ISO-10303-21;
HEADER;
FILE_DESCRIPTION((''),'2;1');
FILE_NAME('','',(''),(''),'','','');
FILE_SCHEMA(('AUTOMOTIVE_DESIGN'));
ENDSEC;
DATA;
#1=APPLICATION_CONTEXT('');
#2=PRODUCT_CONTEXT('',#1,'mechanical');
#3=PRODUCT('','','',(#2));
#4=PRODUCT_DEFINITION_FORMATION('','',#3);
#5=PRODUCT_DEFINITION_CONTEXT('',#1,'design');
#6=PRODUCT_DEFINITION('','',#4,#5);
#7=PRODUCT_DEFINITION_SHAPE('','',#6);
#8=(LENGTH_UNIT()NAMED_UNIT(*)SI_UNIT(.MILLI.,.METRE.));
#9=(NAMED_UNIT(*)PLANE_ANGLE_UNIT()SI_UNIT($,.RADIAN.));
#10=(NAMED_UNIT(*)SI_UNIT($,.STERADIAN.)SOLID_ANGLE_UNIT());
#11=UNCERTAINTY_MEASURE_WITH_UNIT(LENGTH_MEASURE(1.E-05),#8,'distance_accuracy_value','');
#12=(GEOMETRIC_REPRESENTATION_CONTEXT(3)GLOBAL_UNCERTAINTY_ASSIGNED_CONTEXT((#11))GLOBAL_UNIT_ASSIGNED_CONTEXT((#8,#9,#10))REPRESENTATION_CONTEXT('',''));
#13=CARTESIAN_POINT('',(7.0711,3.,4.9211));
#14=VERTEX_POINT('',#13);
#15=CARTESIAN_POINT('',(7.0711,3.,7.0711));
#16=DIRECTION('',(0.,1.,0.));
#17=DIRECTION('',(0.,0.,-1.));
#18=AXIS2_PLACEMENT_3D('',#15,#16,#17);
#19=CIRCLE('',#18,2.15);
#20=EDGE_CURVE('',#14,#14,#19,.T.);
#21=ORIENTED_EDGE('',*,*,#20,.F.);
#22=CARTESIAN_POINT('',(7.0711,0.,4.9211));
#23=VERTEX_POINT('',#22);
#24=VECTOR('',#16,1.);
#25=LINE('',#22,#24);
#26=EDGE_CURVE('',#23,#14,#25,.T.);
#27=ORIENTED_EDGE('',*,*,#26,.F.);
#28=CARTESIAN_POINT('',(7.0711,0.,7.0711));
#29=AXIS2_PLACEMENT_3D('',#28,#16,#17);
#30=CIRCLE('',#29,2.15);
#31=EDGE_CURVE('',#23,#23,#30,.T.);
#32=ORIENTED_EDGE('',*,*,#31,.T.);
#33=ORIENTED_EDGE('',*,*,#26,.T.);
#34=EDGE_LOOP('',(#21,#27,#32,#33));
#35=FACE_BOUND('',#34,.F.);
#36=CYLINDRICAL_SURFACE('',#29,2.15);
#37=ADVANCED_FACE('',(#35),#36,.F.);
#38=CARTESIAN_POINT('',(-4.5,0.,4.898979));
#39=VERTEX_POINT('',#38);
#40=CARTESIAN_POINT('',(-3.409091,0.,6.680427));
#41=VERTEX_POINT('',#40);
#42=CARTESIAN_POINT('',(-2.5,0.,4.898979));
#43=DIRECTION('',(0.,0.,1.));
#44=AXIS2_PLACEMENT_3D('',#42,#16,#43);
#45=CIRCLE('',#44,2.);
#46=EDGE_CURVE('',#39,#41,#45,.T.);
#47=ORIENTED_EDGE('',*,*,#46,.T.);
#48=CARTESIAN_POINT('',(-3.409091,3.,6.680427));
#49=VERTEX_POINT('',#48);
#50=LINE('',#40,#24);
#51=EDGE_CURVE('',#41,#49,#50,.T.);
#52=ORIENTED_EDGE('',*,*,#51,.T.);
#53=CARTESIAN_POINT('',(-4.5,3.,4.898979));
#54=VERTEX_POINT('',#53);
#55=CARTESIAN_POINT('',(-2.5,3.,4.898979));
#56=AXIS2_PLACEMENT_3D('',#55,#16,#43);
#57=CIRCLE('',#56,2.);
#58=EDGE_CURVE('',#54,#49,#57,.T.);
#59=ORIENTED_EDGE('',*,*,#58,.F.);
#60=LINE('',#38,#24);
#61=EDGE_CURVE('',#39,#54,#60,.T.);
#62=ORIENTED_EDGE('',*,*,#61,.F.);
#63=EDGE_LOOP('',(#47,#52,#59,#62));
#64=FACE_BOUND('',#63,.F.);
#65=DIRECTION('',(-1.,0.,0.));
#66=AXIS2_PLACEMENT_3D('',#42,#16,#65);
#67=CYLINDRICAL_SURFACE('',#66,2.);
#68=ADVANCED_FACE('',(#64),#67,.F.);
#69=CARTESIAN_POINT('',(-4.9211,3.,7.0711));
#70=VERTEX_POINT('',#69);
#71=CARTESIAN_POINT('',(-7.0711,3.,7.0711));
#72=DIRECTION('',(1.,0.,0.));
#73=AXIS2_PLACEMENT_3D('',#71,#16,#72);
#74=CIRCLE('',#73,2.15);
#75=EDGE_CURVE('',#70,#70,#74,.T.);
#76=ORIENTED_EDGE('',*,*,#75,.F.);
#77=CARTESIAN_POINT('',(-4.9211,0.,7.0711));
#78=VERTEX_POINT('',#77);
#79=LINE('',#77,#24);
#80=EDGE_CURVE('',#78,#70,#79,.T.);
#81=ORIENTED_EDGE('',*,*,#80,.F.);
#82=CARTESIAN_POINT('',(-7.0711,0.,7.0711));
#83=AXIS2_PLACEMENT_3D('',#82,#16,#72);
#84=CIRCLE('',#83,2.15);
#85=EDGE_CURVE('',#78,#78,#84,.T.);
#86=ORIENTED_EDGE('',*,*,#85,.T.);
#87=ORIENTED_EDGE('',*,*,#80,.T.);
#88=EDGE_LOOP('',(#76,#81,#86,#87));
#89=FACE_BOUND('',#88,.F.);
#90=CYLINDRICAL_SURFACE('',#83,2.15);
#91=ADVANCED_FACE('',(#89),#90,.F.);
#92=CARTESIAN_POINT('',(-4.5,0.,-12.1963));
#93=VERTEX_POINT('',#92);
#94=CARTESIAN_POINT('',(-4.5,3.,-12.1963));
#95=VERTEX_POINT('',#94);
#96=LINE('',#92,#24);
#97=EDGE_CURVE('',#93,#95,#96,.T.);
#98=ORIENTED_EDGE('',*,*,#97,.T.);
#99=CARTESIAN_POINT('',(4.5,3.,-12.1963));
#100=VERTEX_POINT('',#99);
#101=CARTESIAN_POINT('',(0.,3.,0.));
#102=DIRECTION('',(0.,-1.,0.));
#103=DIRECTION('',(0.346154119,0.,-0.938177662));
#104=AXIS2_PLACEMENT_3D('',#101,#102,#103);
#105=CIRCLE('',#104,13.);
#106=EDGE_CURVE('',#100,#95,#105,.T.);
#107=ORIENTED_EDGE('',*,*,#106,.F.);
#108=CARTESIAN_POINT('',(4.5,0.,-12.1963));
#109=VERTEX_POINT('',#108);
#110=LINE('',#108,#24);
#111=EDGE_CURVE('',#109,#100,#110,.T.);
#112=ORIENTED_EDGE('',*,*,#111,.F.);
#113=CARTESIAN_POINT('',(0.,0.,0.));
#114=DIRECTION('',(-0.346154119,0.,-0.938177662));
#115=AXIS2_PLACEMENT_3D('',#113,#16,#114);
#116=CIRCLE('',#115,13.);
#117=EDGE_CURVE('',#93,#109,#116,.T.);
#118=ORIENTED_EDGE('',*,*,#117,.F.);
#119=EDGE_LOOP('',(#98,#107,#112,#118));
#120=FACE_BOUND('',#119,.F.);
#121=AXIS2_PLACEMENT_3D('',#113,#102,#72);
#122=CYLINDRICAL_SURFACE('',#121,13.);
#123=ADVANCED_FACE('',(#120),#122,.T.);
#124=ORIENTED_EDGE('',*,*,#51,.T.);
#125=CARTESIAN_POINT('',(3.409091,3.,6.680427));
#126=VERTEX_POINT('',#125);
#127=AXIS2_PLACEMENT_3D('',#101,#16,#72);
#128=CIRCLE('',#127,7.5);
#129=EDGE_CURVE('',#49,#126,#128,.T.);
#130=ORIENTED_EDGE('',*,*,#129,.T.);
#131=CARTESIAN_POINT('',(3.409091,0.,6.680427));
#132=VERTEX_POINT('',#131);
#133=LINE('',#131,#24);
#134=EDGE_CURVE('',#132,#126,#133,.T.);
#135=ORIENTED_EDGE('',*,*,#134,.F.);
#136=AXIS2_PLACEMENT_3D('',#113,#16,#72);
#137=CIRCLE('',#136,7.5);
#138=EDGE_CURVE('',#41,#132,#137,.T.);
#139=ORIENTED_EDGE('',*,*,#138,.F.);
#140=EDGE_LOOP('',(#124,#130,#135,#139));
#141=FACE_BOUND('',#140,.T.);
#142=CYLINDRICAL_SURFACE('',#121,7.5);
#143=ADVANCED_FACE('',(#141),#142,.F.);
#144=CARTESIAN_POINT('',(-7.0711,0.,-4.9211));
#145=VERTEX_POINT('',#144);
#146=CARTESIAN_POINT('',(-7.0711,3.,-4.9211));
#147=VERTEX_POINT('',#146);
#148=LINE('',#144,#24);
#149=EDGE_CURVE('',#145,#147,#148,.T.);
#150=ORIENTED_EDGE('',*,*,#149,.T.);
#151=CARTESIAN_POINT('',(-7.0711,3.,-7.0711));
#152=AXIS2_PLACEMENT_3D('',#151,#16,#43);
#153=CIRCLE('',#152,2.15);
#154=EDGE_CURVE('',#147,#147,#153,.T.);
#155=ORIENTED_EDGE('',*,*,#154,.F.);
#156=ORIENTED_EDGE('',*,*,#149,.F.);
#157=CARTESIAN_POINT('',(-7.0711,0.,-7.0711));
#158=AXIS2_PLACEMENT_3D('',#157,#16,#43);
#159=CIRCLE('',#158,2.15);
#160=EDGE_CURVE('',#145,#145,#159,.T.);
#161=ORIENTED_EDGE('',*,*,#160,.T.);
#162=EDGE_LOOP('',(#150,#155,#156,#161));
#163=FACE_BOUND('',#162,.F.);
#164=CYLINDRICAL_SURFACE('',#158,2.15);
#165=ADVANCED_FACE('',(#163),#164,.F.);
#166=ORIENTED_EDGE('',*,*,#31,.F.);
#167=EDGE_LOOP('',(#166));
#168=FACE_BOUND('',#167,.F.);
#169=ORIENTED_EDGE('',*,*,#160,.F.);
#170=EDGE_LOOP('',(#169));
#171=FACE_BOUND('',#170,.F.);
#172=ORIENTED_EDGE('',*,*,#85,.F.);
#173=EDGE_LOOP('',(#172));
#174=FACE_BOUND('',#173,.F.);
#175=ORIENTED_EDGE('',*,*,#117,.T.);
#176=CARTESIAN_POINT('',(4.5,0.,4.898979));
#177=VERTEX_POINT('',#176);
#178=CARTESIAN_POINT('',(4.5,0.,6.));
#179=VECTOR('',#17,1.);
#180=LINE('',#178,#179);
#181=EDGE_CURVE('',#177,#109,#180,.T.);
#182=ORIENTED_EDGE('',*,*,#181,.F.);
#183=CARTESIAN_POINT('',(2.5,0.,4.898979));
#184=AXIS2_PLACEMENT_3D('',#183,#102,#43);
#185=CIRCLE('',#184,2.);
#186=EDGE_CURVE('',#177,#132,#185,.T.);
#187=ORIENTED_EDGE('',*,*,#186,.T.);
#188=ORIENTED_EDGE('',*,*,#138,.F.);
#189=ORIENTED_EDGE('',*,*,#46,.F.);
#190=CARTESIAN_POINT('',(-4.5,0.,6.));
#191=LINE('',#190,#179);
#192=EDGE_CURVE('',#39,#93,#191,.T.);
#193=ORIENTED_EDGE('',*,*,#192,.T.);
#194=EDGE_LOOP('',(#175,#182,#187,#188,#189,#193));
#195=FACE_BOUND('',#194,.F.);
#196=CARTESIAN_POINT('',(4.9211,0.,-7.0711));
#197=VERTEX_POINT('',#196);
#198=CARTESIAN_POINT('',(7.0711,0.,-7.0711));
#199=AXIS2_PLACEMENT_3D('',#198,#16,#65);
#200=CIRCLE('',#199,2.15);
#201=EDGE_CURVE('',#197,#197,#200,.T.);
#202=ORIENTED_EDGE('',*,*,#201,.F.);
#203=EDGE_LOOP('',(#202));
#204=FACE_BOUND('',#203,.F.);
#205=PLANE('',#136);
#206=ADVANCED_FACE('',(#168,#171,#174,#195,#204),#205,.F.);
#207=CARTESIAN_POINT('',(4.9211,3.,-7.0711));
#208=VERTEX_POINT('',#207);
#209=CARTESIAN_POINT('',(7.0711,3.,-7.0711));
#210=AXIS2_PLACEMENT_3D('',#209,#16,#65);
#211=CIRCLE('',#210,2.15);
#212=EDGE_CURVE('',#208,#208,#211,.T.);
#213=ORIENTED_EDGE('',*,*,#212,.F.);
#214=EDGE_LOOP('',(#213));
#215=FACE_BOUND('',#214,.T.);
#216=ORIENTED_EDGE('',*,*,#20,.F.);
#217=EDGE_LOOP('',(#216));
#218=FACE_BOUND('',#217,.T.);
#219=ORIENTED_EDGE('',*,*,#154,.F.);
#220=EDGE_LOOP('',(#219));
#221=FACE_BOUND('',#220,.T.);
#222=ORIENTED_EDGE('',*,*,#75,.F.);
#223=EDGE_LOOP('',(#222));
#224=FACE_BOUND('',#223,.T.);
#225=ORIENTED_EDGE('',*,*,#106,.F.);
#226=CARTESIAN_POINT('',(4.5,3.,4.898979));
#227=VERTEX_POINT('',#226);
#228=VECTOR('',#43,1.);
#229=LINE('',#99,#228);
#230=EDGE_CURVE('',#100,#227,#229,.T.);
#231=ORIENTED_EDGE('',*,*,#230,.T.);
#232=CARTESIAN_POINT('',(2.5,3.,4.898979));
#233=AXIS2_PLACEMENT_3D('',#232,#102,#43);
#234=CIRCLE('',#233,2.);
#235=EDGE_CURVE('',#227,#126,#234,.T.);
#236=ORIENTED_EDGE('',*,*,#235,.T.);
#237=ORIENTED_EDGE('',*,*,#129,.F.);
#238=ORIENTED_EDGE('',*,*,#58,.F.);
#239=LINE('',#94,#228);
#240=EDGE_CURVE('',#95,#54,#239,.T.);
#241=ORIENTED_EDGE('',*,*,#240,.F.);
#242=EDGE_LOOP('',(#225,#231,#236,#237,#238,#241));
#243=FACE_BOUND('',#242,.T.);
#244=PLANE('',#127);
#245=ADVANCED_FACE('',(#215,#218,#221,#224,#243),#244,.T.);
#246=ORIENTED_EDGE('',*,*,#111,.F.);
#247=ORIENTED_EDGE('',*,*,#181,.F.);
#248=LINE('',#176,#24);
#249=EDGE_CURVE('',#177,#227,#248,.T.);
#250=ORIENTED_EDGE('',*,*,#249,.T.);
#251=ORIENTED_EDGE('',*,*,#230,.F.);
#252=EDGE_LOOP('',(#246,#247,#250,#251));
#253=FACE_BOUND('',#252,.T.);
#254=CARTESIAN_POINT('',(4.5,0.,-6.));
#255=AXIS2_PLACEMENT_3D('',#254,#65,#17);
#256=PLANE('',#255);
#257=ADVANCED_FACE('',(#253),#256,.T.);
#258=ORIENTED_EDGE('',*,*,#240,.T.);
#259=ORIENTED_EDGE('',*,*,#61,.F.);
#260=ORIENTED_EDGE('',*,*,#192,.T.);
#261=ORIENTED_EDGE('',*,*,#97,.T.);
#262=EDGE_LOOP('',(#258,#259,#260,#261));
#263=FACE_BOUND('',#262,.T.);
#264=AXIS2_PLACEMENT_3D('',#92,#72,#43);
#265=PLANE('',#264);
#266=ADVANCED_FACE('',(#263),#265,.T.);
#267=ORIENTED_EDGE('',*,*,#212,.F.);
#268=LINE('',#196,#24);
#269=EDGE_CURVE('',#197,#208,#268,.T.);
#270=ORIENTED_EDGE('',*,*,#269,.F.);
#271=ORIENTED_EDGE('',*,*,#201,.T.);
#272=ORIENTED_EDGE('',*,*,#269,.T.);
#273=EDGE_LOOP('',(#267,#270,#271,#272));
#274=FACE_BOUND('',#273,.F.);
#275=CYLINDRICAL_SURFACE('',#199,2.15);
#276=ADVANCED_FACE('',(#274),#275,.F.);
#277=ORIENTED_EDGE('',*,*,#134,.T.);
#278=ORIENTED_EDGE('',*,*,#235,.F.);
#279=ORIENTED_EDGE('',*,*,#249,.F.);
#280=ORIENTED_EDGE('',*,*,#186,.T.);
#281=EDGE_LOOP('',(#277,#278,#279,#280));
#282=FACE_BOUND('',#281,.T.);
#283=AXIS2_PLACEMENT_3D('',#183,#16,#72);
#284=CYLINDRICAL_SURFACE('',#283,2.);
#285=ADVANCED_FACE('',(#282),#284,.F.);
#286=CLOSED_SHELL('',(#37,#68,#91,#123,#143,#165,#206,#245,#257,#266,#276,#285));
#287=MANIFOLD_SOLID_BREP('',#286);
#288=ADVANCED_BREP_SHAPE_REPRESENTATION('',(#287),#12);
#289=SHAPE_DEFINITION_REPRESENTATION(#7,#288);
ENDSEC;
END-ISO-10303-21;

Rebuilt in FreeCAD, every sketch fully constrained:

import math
import FreeCAD as App
import Part
import Sketcher

V = App.Vector
Q = App.Units.Quantity


def edges_at(feature, points):
    """Names of the edges that pass closest to the given points."""
    edges = feature.Shape.Edges
    near = lambda p: min(range(len(edges)), key=lambda i: edges[i].distToShape(Part.Vertex(*p))[0])
    return sorted({f"Edge{near(p) + 1}" for p in points})

doc = App.newDocument("Part")
body = doc.addObject("PartDesign::Body", "Body")

sketch1 = body.newObject("Sketcher::SketchObject", "Sketch")
sketch1.AttachmentSupport = (doc.getObject("XZ_Plane"), [""])
sketch1.MapMode = "FlatFace"
sketch1.addGeometry([
    Part.ArcOfCircle(Part.Circle(V(0, 0, 0), V(0, 0, 1), 13), math.radians(-70), math.radians(250)),
    Part.LineSegment(V(4, -12, 0), V(4, 6, 0)),
    Part.ArcOfCircle(Part.Circle(V(0, 0, 0), V(0, 0, 1), 8), math.radians(53), math.radians(127)),
    Part.LineSegment(V(-4, 6, 0), V(-4, -12, 0)),
], False)
sketch1.addConstraint([
    Sketcher.Constraint("Coincident", 0, 1, 1, 1),
    Sketcher.Constraint("Coincident", 1, 2, 2, 1),
    Sketcher.Constraint("Coincident", 2, 2, 3, 1),
    Sketcher.Constraint("Coincident", 3, 2, 0, 2),
    Sketcher.Constraint("Vertical", 1),
    Sketcher.Constraint("Vertical", 3),
    Sketcher.Constraint("Coincident", 0, 3, -1, 1),
    Sketcher.Constraint("Coincident", 2, 3, -1, 1),
    Sketcher.Constraint("Horizontal", 1, 2, 2, 2),
    Sketcher.Constraint("Radius", 0, Q("13 mm")),
    Sketcher.Constraint("Radius", 2, Q("7.5 mm")),
    Sketcher.Constraint("DistanceX", 2, 2, 1, 2, Q("9 mm")),
])
pad1 = body.newObject("PartDesign::Pad", "Pad")
pad1.Profile = sketch1
pad1.Length = 3
pad1.Reversed = True

sketch2 = body.newObject("Sketcher::SketchObject", "Sketch001")
sketch2.AttachmentSupport = (doc.getObject("XZ_Plane"), [""])
sketch2.MapMode = "FlatFace"
sketch2.addGeometry(Part.Circle(V(7.1, 7.1, 0), V(0, 0, 1), 2.1), False)
sketch2.addConstraint([
    Sketcher.Constraint("Diameter", 0, Q("4.3 mm")),
    Sketcher.Constraint("DistanceX", -1, 1, 0, 3, Q("7.071 mm")),
    Sketcher.Constraint("DistanceY", -1, 1, 0, 3, Q("7.071 mm")),
])
doc.recompute()
hole = body.newObject("PartDesign::Hole", "Hole")
hole.Profile = sketch2
hole.ThreadType = "None"
hole.Diameter = 4.3
hole.DepthType = "ThroughAll"
doc.recompute()

polarpattern = body.newObject("PartDesign::PolarPattern", "PolarPattern")
polarpattern.Originals = [hole]
polarpattern.Axis = (doc.getObject("Y_Axis"), [""])
polarpattern.Angle = 360
polarpattern.Occurrences = 4
body.Tip = polarpattern
doc.recompute()

fillet = body.newObject("PartDesign::Fillet", "Fillet")
fillet.Base = (polarpattern, edges_at(polarpattern, [(-4.5, 1.5, 6), (4.5, 1.5, 6)]))
fillet.Radius = 2

doc.recompute()
